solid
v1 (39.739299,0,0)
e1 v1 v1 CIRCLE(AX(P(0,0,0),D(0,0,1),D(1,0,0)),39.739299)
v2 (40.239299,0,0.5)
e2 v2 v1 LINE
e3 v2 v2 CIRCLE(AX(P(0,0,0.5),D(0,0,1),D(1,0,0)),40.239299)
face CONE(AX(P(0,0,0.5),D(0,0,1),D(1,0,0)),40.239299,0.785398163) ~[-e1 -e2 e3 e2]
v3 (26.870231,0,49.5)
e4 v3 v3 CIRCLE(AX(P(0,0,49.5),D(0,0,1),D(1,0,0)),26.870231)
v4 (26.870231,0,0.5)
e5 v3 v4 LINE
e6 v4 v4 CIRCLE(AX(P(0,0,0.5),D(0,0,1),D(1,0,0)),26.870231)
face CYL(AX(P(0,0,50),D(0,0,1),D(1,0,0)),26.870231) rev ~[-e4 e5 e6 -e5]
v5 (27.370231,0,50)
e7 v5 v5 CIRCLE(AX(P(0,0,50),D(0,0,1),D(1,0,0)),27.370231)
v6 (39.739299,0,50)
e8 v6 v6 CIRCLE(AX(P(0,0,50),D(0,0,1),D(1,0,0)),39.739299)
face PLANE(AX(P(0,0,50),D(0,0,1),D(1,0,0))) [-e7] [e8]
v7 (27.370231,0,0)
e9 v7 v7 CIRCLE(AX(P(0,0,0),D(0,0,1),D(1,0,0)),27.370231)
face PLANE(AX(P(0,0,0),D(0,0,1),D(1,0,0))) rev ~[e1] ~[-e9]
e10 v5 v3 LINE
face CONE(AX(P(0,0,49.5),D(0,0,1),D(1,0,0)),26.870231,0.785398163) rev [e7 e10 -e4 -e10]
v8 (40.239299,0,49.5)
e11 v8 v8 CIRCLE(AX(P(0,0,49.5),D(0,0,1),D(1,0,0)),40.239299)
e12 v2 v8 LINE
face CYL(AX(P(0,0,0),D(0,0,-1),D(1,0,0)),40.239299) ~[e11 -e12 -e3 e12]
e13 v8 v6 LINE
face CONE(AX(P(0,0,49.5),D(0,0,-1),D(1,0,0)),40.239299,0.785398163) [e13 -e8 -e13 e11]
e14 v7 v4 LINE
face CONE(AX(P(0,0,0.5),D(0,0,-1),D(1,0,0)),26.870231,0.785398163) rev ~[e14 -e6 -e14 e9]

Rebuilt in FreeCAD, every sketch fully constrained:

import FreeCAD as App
import Part
import Sketcher


def edges_at(feature, points):
    """Names of the edges that pass closest to the given points."""
    edges = feature.Shape.Edges
    near = lambda p: min(range(len(edges)), key=lambda i: edges[i].distToShape(Part.Vertex(*p))[0])
    return sorted({f"Edge{near(p) + 1}" for p in points})

doc = App.newDocument("Part")
body = doc.addObject("PartDesign::Body", "Body")

sketch1 = doc.addObject("Sketcher::SketchObject", "Sketch")
body.addObject(sketch1)
sketch1.AttachmentSupport = (doc.XY_Plane, [""])
sketch1.MapMode = "FlatFace"
sketch1.addGeometry(Part.Circle(App.Vector(0, 0, 0), App.Vector(0, 0, 1), 40.239299), False)
sketch1.addConstraint(Sketcher.Constraint("Coincident", 0, 3, -1, 1))
sketch1.addConstraint(Sketcher.Constraint("Diameter", 0, 80.478598))
pad1 = doc.addObject("PartDesign::Pad", "Pad")
body.addObject(pad1)
pad1.Profile = sketch1
pad1.Length = 50

sketch2 = doc.addObject("Sketcher::SketchObject", "Sketch001")
body.addObject(sketch2)
sketch2.AttachmentSupport = (doc.XY_Plane, [""])
sketch2.MapMode = "FlatFace"
sketch2.AttachmentOffset = App.Placement(App.Vector(0, 0, 50), App.Rotation())
sketch2.addGeometry(Part.Circle(App.Vector(0, 0, 0), App.Vector(0, 0, 1), 26.870231), False)
sketch2.addConstraint(Sketcher.Constraint("Coincident", 0, 3, -1, 1))
sketch2.addConstraint(Sketcher.Constraint("Diameter", 0, 53.740462))
pocket1 = doc.addObject("PartDesign::Pocket", "Pocket")
body.addObject(pocket1)
pocket1.Profile = sketch2
pocket1.Length = 62
doc.recompute()

chamfer = doc.addObject("PartDesign::Chamfer", "Chamfer")
body.addObject(chamfer)
chamfer.Base = (pocket1, edges_at(pocket1, [
    (-40.239, 0, 50),
    (-26.87, 0, 50),
    (-40.239, 0, 0),
    (-26.87, 0, 0),
]))
chamfer.Size = 0.5

doc.recompute()
